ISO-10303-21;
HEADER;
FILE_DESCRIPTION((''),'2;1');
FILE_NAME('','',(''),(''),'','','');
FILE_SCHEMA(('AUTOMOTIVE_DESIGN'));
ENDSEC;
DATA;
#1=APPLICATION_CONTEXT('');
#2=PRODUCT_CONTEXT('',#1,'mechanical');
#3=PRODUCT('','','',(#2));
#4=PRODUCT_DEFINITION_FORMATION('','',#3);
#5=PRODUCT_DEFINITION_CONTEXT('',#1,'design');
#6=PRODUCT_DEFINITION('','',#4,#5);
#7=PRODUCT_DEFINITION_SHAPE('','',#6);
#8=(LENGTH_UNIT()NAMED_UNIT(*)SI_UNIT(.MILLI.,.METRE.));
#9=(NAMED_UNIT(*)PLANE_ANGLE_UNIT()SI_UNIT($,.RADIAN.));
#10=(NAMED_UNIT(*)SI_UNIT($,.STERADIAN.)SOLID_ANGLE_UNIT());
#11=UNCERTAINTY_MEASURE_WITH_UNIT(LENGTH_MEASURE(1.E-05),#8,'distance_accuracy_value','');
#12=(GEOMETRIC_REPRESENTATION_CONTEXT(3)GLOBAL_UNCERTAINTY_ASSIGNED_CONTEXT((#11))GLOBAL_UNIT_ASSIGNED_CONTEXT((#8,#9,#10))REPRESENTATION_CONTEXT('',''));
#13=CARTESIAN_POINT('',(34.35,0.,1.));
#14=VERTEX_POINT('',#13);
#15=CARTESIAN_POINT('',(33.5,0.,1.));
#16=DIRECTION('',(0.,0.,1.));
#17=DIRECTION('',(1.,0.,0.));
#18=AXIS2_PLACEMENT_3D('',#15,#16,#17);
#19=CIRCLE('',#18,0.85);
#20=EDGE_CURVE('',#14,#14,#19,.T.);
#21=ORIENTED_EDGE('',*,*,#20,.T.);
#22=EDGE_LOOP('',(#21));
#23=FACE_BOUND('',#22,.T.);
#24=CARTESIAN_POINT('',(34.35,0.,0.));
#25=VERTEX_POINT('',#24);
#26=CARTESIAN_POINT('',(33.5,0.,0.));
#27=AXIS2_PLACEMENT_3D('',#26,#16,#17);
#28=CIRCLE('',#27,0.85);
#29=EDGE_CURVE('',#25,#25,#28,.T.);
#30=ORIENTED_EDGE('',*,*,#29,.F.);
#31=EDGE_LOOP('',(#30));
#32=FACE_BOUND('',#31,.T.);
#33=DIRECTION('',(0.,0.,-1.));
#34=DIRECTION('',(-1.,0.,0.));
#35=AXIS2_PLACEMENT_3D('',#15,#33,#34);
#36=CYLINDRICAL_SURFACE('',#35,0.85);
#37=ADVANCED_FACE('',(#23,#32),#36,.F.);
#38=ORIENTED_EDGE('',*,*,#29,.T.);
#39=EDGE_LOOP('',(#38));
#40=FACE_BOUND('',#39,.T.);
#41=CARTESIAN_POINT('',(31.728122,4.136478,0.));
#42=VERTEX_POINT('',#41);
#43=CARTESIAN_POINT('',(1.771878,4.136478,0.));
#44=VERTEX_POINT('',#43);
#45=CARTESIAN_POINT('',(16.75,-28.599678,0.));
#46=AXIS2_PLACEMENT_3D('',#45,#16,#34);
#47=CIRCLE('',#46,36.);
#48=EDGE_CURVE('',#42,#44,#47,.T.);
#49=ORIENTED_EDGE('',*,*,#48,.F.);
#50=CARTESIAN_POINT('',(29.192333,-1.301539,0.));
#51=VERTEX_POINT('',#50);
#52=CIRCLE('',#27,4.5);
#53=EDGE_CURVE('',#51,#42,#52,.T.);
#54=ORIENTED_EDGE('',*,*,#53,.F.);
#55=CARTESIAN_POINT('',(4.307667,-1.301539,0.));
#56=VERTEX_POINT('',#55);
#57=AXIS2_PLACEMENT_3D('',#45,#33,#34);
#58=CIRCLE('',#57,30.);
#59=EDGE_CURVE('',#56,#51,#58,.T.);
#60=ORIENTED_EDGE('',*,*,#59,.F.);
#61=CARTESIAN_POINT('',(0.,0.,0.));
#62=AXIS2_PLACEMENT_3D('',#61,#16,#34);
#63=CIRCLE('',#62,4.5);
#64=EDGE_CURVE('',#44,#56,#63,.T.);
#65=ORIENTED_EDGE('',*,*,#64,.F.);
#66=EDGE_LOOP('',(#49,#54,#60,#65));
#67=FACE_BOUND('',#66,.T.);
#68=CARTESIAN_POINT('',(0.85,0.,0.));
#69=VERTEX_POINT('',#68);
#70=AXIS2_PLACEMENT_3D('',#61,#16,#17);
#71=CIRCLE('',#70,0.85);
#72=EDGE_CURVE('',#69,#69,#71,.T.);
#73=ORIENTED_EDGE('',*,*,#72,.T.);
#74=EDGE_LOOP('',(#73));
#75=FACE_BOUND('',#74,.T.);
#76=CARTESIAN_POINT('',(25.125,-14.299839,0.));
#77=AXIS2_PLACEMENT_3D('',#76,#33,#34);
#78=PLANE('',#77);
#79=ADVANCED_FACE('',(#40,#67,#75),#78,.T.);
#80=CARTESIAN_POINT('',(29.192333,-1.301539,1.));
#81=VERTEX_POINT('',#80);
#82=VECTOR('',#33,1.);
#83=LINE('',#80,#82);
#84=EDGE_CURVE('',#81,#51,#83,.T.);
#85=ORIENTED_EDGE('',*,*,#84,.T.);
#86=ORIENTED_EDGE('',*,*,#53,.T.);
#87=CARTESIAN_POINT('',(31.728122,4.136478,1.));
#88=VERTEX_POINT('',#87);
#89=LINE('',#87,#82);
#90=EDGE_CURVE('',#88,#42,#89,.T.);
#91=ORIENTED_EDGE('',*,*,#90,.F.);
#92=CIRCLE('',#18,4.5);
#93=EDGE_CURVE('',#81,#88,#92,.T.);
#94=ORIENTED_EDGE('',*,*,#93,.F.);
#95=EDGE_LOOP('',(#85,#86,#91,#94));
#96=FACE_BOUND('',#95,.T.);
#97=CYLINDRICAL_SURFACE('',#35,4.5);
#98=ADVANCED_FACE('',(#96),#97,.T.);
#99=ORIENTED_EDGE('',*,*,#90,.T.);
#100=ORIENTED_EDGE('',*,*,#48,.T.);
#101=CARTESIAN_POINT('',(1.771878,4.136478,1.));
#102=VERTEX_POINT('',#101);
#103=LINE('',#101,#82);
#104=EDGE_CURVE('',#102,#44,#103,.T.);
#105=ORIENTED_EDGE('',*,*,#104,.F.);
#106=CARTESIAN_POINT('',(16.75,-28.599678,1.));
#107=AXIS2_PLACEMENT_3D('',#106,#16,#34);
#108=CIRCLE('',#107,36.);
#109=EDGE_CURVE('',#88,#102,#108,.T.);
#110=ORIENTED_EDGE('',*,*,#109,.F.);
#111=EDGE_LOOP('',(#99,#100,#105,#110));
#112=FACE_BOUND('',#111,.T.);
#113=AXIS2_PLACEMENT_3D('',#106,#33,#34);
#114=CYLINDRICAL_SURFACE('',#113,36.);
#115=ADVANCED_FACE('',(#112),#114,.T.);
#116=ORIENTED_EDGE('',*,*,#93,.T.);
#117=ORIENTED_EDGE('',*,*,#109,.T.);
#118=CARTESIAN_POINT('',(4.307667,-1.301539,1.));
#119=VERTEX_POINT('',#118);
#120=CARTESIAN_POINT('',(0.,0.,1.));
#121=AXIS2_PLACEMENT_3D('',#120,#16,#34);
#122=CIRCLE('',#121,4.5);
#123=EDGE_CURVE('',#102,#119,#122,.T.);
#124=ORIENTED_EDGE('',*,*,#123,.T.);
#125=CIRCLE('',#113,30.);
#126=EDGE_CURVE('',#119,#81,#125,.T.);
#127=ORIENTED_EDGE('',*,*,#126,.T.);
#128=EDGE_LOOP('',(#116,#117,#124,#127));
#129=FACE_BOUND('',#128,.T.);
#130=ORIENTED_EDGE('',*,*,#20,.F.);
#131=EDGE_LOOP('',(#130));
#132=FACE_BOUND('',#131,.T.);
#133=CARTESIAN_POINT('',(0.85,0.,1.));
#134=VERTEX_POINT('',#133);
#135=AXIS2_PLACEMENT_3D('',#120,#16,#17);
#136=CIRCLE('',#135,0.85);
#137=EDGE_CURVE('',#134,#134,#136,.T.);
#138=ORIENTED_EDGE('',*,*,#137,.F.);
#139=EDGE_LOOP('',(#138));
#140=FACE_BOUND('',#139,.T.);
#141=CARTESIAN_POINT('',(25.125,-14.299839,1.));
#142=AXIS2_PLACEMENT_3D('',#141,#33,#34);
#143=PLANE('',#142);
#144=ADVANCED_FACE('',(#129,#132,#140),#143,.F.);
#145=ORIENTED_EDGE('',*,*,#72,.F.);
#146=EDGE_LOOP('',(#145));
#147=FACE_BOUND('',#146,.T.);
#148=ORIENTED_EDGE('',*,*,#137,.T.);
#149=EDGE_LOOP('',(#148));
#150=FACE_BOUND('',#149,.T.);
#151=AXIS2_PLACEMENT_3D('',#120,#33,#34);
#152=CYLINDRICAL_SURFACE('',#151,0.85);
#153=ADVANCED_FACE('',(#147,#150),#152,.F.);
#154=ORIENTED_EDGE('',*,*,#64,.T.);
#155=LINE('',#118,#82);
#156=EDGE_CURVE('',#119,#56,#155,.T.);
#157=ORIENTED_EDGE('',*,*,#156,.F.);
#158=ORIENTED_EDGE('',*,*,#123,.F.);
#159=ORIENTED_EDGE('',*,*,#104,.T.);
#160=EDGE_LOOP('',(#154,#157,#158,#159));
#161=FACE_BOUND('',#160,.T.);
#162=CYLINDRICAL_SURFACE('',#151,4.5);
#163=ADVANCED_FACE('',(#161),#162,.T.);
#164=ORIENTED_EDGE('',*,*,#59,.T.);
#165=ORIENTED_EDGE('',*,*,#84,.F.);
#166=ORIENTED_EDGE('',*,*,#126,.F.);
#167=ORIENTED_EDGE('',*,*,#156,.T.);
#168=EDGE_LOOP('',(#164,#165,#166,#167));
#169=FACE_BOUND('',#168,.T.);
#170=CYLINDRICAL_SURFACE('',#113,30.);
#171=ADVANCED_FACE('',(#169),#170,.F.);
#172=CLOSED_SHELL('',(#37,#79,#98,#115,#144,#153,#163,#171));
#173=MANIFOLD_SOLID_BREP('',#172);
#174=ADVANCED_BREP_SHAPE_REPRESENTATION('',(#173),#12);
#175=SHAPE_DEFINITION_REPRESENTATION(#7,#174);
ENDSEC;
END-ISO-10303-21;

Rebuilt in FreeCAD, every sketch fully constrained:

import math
import FreeCAD as App
import Part
import Sketcher

doc = App.newDocument("Part")
body = doc.addObject("PartDesign::Body", "Body")

# Sketch on XY plane
sketch1 = doc.addObject("Sketcher::SketchObject", "Sketch")
body.addObject(sketch1)
sketch1.AttachmentSupport = (doc.XY_Plane, [""])
sketch1.MapMode = "FlatFace"
sketch1.addGeometry([
    Part.ArcOfCircle(Part.Circle(App.Vector(0, 0, 0), App.Vector(0, 0, 1), 4.5), math.radians(66.81192), math.radians(343.18808)),  # 0
    Part.ArcOfCircle(Part.Circle(App.Vector(16.75, -28.599678, 0), App.Vector(0, 0, 1), 30), math.radians(65.496777), math.radians(114.503223)),  # 1
    Part.ArcOfCircle(Part.Circle(App.Vector(33.5, 0, 0), App.Vector(0, 0, 1), 4.5), math.radians(-163.18808), math.radians(113.18808)),  # 2
    Part.ArcOfCircle(Part.Circle(App.Vector(16.75, -28.599678, 0), App.Vector(0, 0, 1), 36), math.radians(65.413979), math.radians(114.586021)),  # 3
    Part.Circle(App.Vector(33.5, 0, 0), App.Vector(0, 0, 1), 0.85),  # 4
    Part.Circle(App.Vector(0, 0, 0), App.Vector(0, 0, 1), 0.85),  # 5
], False)
sketch1.addConstraint([
    Sketcher.Constraint("Coincident", 0, 2, 1, 2),
    Sketcher.Constraint("Coincident", 1, 1, 2, 1),
    Sketcher.Constraint("Coincident", 2, 2, 3, 1),
    Sketcher.Constraint("Coincident", 3, 2, 0, 1),
    Sketcher.Constraint("Coincident", 0, 3, -1, 1),
    Sketcher.Constraint("Coincident", 5, 3, -1, 1),
    Sketcher.Constraint("Coincident", 3, 3, 1, 3),
    Sketcher.Constraint("Coincident", 4, 3, 2, 3),
    Sketcher.Constraint("Equal", 0, 2),
    Sketcher.Constraint("Equal", 4, 5),
    Sketcher.Constraint("PointOnObject", 2, 3, -1),
    Sketcher.Constraint("Horizontal", 0, 2, 1, 1),
    Sketcher.Constraint("Radius", 1, 30.0),
    Sketcher.Constraint("Radius", 3, 36.0),
    Sketcher.Constraint("Diameter", 4, 1.7),
    Sketcher.Constraint("Radius", 0, 4.5),
    Sketcher.Constraint("DistanceX", -1, 1, 2, 3, 33.5),
    Sketcher.Constraint("DistanceY", 0, 2, -1, 1, 1.301539),
])
pad1 = doc.addObject("PartDesign::Pad", "Pad")
body.addObject(pad1)
pad1.Profile = sketch1
pad1.Length = 1

doc.recompute()
